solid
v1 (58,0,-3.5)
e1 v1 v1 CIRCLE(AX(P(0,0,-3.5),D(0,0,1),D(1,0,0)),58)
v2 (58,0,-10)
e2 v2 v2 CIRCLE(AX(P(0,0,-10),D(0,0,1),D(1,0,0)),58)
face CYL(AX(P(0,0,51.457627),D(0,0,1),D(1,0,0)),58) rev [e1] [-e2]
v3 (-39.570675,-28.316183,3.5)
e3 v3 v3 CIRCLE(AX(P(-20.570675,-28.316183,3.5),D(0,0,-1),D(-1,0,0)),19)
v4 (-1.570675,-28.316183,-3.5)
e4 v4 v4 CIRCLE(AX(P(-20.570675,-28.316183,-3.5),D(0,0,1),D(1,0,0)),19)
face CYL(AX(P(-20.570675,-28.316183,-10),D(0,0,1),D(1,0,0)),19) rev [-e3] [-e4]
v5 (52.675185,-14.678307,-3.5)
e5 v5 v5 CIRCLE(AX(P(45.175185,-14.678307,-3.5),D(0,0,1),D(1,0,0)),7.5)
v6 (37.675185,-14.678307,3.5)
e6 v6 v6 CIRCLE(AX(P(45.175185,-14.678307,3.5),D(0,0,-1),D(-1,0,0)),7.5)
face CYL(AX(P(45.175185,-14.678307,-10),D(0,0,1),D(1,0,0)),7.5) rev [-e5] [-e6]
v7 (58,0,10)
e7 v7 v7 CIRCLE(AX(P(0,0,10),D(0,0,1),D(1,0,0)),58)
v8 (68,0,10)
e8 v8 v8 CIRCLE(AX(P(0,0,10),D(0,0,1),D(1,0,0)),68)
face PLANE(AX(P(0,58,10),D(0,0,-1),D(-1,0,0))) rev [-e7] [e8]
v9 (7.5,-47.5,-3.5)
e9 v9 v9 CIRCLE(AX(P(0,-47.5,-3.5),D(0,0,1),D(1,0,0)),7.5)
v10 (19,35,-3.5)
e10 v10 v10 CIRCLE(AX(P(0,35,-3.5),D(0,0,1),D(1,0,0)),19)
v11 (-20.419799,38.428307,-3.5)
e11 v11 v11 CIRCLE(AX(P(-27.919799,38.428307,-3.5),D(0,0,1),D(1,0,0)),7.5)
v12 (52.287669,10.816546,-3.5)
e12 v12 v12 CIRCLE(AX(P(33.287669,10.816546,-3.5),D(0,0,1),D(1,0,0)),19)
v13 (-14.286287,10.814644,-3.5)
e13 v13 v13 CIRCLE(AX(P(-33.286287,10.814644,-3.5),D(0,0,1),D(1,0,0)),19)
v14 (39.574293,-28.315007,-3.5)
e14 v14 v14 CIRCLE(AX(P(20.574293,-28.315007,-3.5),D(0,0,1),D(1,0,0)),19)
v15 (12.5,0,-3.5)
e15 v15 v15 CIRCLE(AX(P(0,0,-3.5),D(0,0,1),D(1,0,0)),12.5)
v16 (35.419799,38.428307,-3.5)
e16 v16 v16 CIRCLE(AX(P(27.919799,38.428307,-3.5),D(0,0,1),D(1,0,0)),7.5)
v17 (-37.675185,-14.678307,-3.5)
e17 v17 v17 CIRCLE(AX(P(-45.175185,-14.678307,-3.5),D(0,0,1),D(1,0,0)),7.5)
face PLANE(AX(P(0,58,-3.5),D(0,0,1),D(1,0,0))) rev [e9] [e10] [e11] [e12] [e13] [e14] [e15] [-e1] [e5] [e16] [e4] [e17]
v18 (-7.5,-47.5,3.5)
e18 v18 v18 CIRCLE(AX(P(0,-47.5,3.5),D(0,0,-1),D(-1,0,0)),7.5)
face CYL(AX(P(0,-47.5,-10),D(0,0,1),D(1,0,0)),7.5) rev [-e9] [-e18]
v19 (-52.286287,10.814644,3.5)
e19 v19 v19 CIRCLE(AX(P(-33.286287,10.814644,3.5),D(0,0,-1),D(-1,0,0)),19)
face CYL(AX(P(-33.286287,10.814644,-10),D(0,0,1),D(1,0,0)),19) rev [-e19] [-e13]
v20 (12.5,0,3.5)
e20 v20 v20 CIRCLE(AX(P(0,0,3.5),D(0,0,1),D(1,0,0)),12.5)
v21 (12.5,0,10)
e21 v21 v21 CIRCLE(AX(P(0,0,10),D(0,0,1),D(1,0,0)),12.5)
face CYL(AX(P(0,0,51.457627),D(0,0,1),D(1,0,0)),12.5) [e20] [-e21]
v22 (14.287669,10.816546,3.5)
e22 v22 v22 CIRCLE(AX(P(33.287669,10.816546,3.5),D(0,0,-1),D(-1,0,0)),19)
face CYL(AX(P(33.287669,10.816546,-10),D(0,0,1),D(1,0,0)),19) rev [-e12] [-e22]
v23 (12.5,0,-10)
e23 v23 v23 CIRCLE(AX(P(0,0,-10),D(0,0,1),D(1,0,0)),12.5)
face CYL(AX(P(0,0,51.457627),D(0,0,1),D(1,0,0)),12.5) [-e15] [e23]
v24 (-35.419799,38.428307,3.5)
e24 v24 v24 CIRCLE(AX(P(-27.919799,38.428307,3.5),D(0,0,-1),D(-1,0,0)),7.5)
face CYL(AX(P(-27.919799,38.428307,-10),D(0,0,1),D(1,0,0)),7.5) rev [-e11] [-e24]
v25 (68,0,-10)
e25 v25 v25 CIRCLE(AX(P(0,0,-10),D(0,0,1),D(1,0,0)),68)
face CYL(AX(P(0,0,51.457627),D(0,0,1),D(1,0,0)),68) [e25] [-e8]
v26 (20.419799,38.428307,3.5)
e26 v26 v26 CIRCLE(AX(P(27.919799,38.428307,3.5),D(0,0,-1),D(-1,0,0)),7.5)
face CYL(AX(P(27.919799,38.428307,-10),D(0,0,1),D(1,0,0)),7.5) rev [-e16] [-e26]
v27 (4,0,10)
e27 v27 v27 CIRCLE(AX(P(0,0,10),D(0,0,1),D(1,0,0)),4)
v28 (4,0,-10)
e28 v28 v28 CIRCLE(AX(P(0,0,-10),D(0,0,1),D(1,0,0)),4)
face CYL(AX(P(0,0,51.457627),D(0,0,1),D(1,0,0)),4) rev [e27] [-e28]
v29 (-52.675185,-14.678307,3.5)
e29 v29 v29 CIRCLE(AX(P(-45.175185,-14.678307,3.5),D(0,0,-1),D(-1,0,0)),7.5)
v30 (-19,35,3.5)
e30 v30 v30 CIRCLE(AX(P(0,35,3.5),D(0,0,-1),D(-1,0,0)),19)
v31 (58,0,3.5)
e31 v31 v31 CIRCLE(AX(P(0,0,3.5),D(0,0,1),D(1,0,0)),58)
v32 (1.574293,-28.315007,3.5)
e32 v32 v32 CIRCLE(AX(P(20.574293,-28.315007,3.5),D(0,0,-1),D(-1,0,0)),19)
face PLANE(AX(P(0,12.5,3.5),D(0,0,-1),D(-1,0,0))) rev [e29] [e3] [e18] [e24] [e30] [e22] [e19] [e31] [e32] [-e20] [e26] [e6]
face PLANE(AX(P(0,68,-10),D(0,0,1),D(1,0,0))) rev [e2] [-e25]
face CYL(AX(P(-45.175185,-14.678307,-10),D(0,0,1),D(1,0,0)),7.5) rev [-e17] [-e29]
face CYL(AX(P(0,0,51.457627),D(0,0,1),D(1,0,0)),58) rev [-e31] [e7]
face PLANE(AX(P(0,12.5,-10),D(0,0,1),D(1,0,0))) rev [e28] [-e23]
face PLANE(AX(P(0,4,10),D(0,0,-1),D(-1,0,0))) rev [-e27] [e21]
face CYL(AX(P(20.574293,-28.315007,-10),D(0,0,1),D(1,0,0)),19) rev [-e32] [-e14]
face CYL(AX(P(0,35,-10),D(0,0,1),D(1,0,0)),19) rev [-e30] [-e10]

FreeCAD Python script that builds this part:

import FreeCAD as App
import Part
import Sketcher

V = App.Vector


def add_polygon(sketch, points):
    """Adds a closed chain of lines whose ends are joined by coincident constraints."""
    first, n = sketch.GeometryCount, len(points)
    for a, b in zip(points, points[1:] + points[:1]):
        sketch.addGeometry(Part.LineSegment(App.Vector(*a, 0), App.Vector(*b, 0)), False)
    for i in range(n):
        sketch.addConstraint(Sketcher.Constraint("Coincident", first + i, 2, first + (i + 1) % n, 1))

doc = App.newDocument("Part")
params = doc.addObject("Spreadsheet::Sheet", "Params")
for row, (alias, value) in enumerate([
    ("sketch1_width", "10 mm"),
    ("sketch1_height", "20 mm"),
    ("sketch1_width2", "45.5 mm"),
    ("sketch1_width3", "8.5 mm"),
    ("sketch1_height2", "6.5 mm"),
    ("revolution_angle", "360 deg"),
    ("sketch2_diameter", "15 mm"),
    ("sketch2_diameter2", "38 mm"),
], start=1):
    params.set(f"A{row}", alias)
    params.set(f"B{row}", "=" + value)
    params.setAlias(f"B{row}", alias)

body = doc.addObject("PartDesign::Body", "Body")

sketch1 = body.newObject("Sketcher::SketchObject", "Sketch")
sketch1.AttachmentSupport = (doc.getObject("YZ_Plane"), [""])
sketch1.MapMode = "FlatFace"
add_polygon(sketch1, [(68, -10), (68, 10), (58, 10), (58, 4), (12, 4), (12, 10), (4, 10), (4, -10), (12, -10), (12, -4), (58, -4), (58, -10)])
sketch1.addConstraint([
    Sketcher.Constraint("Vertical", 0),
    Sketcher.Constraint("Horizontal", 1),
    Sketcher.Constraint("Vertical", 2),
    Sketcher.Constraint("Horizontal", 3),
    Sketcher.Constraint("Vertical", 4),
    Sketcher.Constraint("Horizontal", 5),
    Sketcher.Constraint("Vertical", 6),
    Sketcher.Constraint("Horizontal", 7),
    Sketcher.Constraint("Vertical", 8),
    Sketcher.Constraint("Horizontal", 9),
    Sketcher.Constraint("Vertical", 10),
    Sketcher.Constraint("Horizontal", 11),
    Sketcher.Constraint("Symmetric", 4, 2, 7, 2, -1),
    Sketcher.Constraint("Symmetric", 2, 2, 9, 2, -1),
    Sketcher.Constraint("Horizontal", 1, 2, 4, 2),
    Sketcher.Constraint("Horizontal", 7, 2, 10, 2),
    Sketcher.Constraint("DistanceX", 1, 2, 1, 1, 10.0),
    Sketcher.Constraint("DistanceY", 0, 1, 0, 2, 20.0),
    Sketcher.Constraint("DistanceX", 3, 2, 3, 1, 45.5),
    Sketcher.Constraint("DistanceX", 5, 2, 5, 1, 8.5),
    Sketcher.Constraint("DistanceY", 2, 2, 2, 1, 6.5),
    Sketcher.Constraint("DistanceX", -1, 1, 0, 2, 68.0),
])
sketch1.setExpression("Constraints[28]", "Params.sketch1_width")
sketch1.setExpression("Constraints[29]", "Params.sketch1_height")
sketch1.setExpression("Constraints[30]", "Params.sketch1_width2")
sketch1.setExpression("Constraints[31]", "Params.sketch1_width3")
sketch1.setExpression("Constraints[32]", "Params.sketch1_height2")
revolution = body.newObject("PartDesign::Revolution", "Revolution")
revolution.Profile = sketch1
revolution.ReferenceAxis = (sketch1, ["V_Axis"])
revolution.setExpression("Angle", "Params.revolution_angle")

sketch2 = body.newObject("Sketcher::SketchObject", "Sketch001")
sketch2.AttachmentSupport = (doc.getObject("XY_Plane"), [""])
sketch2.MapMode = "FlatFace"
sketch2.addGeometry([
    Part.Circle(V(0, -48, 0), V(0, 0, 1), 8),
    Part.Circle(V(45, -15, 0), V(0, 0, 1), 8),
    Part.Circle(V(28, 38, 0), V(0, 0, 1), 8),
    Part.Circle(V(-28, 38, 0), V(0, 0, 1), 8),
    Part.Circle(V(-45, -15, 0), V(0, 0, 1), 8),
    Part.Circle(V(0, 35, 0), V(0, 0, 1), 19),
    Part.Circle(V(33, 11, 0), V(0, 0, 1), 19),
    Part.Circle(V(21, -28, 0), V(0, 0, 1), 19),
    Part.Circle(V(-21, -28, 0), V(0, 0, 1), 19),
    Part.Circle(V(-33, 11, 0), V(0, 0, 1), 19),
], False)
sketch2.addConstraint([
    Sketcher.Constraint("Equal", 0, 1),
    Sketcher.Constraint("Equal", 1, 2),
    Sketcher.Constraint("Equal", 2, 3),
    Sketcher.Constraint("Equal", 3, 4),
    Sketcher.Constraint("Equal", 5, 6),
    Sketcher.Constraint("Equal", 6, 7),
    Sketcher.Constraint("Equal", 7, 8),
    Sketcher.Constraint("Equal", 8, 9),
    Sketcher.Constraint("Symmetric", 2, 3, 3, 3, -2),
    Sketcher.Constraint("Symmetric", 1, 3, 4, 3, -2),
    Sketcher.Constraint("PointOnObject", 0, 3, -2),
    Sketcher.Constraint("PointOnObject", 5, 3, -2),
    Sketcher.Constraint("Diameter", 0, 15.0),
    Sketcher.Constraint("Diameter", 5, 38.0),
    Sketcher.Constraint("DistanceY", -1, 1, 5, 3, 35.0),
    Sketcher.Constraint("DistanceY", 0, 3, -1, 1, 47.5),
    Sketcher.Constraint("DistanceX", -1, 1, 2, 3, 27.919799),
    Sketcher.Constraint("DistanceY", 7, 3, 1, 3, 13.6367),
    Sketcher.Constraint("DistanceX", -1, 1, 6, 3, 33.287669),
    Sketcher.Constraint("DistanceX", 4, 3, 1, 3, 90.350369),
    Sketcher.Constraint("DistanceY", 6, 3, 2, 3, 27.611761),
    Sketcher.Constraint("DistanceX", 7, 3, 1, 3, 24.600892),
    Sketcher.Constraint("DistanceX", 4, 3, 8, 3, 24.60451),
    Sketcher.Constraint("DistanceY", 8, 3, 6, 3, 39.132728),
    Sketcher.Constraint("DistanceY", 4, 3, 9, 3, 25.492951),
    Sketcher.Constraint("DistanceY", 1, 3, -1, 1, 14.678307),
    Sketcher.Constraint("DistanceY", -1, 1, 2, 3, 38.428307),
    Sketcher.Constraint("DistanceX", 9, 3, -1, 1, 33.286287),
])
sketch2.setExpression("Constraints[12]", "Params.sketch2_diameter")
sketch2.setExpression("Constraints[13]", "Params.sketch2_diameter2")
pocket1 = body.newObject("PartDesign::Pocket", "Pocket")
pocket1.Profile = sketch2
pocket1.Type = "ThroughAll"
pocket1.Midplane = True

doc.recompute()
